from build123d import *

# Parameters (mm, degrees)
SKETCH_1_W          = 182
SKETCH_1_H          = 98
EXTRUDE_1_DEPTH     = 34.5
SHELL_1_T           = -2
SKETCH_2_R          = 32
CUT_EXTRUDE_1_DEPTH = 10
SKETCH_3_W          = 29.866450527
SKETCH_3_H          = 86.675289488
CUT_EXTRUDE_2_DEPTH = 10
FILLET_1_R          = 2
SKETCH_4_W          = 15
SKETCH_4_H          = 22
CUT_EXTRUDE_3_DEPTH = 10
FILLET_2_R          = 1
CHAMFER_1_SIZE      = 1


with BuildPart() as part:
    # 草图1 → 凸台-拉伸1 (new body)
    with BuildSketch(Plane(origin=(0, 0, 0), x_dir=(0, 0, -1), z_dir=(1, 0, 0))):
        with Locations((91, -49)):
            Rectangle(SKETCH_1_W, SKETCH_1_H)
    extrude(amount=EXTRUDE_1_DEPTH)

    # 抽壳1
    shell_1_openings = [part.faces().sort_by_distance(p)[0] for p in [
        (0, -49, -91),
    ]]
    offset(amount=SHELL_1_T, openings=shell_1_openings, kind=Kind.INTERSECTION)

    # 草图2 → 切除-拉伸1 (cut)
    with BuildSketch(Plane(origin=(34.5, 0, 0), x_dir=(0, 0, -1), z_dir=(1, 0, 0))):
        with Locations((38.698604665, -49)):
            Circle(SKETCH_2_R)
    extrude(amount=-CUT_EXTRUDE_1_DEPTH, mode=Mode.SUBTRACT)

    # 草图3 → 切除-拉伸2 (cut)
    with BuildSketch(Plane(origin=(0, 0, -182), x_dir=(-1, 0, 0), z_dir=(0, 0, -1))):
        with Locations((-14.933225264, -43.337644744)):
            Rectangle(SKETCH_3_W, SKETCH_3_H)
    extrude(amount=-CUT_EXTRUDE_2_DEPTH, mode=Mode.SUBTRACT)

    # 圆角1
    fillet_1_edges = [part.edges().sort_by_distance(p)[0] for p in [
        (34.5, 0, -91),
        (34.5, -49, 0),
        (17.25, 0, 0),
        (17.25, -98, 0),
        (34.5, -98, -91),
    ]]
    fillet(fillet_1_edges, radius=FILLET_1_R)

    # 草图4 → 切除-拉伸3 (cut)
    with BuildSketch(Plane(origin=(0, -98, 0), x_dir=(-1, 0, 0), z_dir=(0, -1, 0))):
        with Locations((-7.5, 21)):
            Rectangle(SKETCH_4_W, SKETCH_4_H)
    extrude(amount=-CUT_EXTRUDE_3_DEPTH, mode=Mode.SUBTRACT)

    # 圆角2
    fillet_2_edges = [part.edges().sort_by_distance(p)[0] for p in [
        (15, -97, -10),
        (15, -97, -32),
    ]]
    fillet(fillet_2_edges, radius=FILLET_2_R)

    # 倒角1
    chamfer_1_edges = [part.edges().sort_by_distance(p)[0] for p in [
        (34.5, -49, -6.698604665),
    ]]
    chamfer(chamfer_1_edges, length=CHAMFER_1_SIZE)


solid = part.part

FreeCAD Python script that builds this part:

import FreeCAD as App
import Part
import Sketcher


def edges_at(feature, points):
    """Names of the edges that pass closest to the given points."""
    edges = feature.Shape.Edges
    near = lambda p: min(range(len(edges)), key=lambda i: edges[i].distToShape(Part.Vertex(*p))[0])
    return sorted({f"Edge{near(p) + 1}" for p in points})


def faces_at(feature, points):
    """Names of the faces that lie closest to the given points."""
    faces = feature.Shape.Faces
    near = lambda p: min(range(len(faces)), key=lambda i: faces[i].distToShape(Part.Vertex(*p))[0])
    return sorted({f"Face{near(p) + 1}" for p in points})


def add_polygon(sketch, points):
    """Adds a closed chain of lines whose ends are joined by coincident constraints."""
    first, n = sketch.GeometryCount, len(points)
    for a, b in zip(points, points[1:] + points[:1]):
        sketch.addGeometry(Part.LineSegment(App.Vector(*a, 0), App.Vector(*b, 0)), False)
    for i in range(n):
        sketch.addConstraint(Sketcher.Constraint("Coincident", first + i, 2, first + (i + 1) % n, 1))

doc = App.newDocument("Part")
body = doc.addObject("PartDesign::Body", "Body")

sketch1 = body.newObject("Sketcher::SketchObject", "Sketch")
sketch1.AttachmentSupport = (doc.getObject("YZ_Plane"), [""])
sketch1.MapMode = "FlatFace"
add_polygon(sketch1, [(0, 0), (-98, 0), (-98, -182), (0, -182)])
sketch1.addConstraint([
    Sketcher.Constraint("Horizontal", 0),
    Sketcher.Constraint("Vertical", 1),
    Sketcher.Constraint("Horizontal", 2),
    Sketcher.Constraint("Vertical", 3),
    Sketcher.Constraint("Coincident", 3, 2, -1, 1),
    Sketcher.Constraint("DistanceX", 0, 2, 0, 1, 98.0),
    Sketcher.Constraint("DistanceY", 1, 2, 1, 1, 182.0),
])
pad1 = body.newObject("PartDesign::Pad", "Pad")
pad1.Profile = sketch1
pad1.Length = 34.5
doc.recompute()

thickness = body.newObject("PartDesign::Thickness", "Thickness")
thickness.Base = (pad1, faces_at(pad1, [(0, -49, -91)]))
thickness.Value = 2
thickness.Reversed = True
thickness.Join = "Intersection"

sketch2 = body.newObject("Sketcher::SketchObject", "Sketch001")
sketch2.AttachmentSupport = (doc.getObject("YZ_Plane"), [""])
sketch2.MapMode = "FlatFace"
sketch2.AttachmentOffset = App.Placement(App.Vector(0, 0, 34.5), App.Rotation())
sketch2.addGeometry(Part.Circle(App.Vector(-49, -39, 0), App.Vector(0, 0, 1), 32), False)
sketch2.addConstraint([
    Sketcher.Constraint("Diameter", 0, 64.0),
    Sketcher.Constraint("DistanceX", 0, 3, -1, 1, 49.0),
    Sketcher.Constraint("DistanceY", 0, 3, -1, 1, 38.698605),
])
pocket1 = body.newObject("PartDesign::Pocket", "Pocket")
pocket1.Profile = sketch2
pocket1.Length = 10

sketch3 = body.newObject("Sketcher::SketchObject", "Sketch002")
sketch3.AttachmentSupport = (doc.getObject("XY_Plane"), [""])
sketch3.MapMode = "FlatFace"
sketch3.AttachmentOffset = App.Placement(App.Vector(0, 0, -182), App.Rotation())
add_polygon(sketch3, [(30, 0), (30, -87), (0, -87), (0, 0)])
sketch3.addConstraint([
    Sketcher.Constraint("Vertical", 0),
    Sketcher.Constraint("Horizontal", 1),
    Sketcher.Constraint("Vertical", 2),
    Sketcher.Constraint("Horizontal", 3),
    Sketcher.Constraint("Coincident", 2, 2, -1, 1),
    Sketcher.Constraint("DistanceX", 1, 2, 1, 1, 29.866451),
    Sketcher.Constraint("DistanceY", 0, 2, 0, 1, 86.675289),
])
pocket2 = body.newObject("PartDesign::Pocket", "Pocket001")
pocket2.Profile = sketch3
pocket2.Length = 10
pocket2.Reversed = True
doc.recompute()

fillet = body.newObject("PartDesign::Fillet", "Fillet")
fillet.Base = (pocket2, edges_at(pocket2, [
    (34.5, 0, -91),
    (34.5, -49, 0),
    (17.25, 0, 0),
    (17.25, -98, 0),
    (34.5, -98, -91),
]))
fillet.Radius = 2

sketch4 = body.newObject("Sketcher::SketchObject", "Sketch003")
sketch4.AttachmentSupport = (doc.getObject("XZ_Plane"), [""])
sketch4.MapMode = "FlatFace"
sketch4.AttachmentOffset = App.Placement(App.Vector(0, 0, 98), App.Rotation())
add_polygon(sketch4, [(15, -32), (15, -10), (0, -10), (0, -32)])
sketch4.addConstraint([
    Sketcher.Constraint("Vertical", 0),
    Sketcher.Constraint("Horizontal", 1),
    Sketcher.Constraint("Vertical", 2),
    Sketcher.Constraint("Horizontal", 3),
    Sketcher.Constraint("PointOnObject", 1, 2, -2),
    Sketcher.Constraint("DistanceX", 1, 2, 1, 1, 15.0),
    Sketcher.Constraint("DistanceY", 0, 1, 0, 2, 22.0),
    Sketcher.Constraint("DistanceY", 0, 2, -1, 1, 10.0),
])
pocket3 = body.newObject("PartDesign::Pocket", "Pocket002")
pocket3.Profile = sketch4
pocket3.Length = 10
doc.recompute()

fillet2 = body.newObject("PartDesign::Fillet", "Fillet001")
fillet2.Base = (pocket3, edges_at(pocket3, [(15, -97, -10), (15, -97, -32)]))
fillet2.Radius = 1
doc.recompute()

chamfer = body.newObject("PartDesign::Chamfer", "Chamfer")
chamfer.Base = (fillet2, edges_at(fillet2, [(34.5, -49, -6.699)]))
chamfer.Size = 1

doc.recompute()
